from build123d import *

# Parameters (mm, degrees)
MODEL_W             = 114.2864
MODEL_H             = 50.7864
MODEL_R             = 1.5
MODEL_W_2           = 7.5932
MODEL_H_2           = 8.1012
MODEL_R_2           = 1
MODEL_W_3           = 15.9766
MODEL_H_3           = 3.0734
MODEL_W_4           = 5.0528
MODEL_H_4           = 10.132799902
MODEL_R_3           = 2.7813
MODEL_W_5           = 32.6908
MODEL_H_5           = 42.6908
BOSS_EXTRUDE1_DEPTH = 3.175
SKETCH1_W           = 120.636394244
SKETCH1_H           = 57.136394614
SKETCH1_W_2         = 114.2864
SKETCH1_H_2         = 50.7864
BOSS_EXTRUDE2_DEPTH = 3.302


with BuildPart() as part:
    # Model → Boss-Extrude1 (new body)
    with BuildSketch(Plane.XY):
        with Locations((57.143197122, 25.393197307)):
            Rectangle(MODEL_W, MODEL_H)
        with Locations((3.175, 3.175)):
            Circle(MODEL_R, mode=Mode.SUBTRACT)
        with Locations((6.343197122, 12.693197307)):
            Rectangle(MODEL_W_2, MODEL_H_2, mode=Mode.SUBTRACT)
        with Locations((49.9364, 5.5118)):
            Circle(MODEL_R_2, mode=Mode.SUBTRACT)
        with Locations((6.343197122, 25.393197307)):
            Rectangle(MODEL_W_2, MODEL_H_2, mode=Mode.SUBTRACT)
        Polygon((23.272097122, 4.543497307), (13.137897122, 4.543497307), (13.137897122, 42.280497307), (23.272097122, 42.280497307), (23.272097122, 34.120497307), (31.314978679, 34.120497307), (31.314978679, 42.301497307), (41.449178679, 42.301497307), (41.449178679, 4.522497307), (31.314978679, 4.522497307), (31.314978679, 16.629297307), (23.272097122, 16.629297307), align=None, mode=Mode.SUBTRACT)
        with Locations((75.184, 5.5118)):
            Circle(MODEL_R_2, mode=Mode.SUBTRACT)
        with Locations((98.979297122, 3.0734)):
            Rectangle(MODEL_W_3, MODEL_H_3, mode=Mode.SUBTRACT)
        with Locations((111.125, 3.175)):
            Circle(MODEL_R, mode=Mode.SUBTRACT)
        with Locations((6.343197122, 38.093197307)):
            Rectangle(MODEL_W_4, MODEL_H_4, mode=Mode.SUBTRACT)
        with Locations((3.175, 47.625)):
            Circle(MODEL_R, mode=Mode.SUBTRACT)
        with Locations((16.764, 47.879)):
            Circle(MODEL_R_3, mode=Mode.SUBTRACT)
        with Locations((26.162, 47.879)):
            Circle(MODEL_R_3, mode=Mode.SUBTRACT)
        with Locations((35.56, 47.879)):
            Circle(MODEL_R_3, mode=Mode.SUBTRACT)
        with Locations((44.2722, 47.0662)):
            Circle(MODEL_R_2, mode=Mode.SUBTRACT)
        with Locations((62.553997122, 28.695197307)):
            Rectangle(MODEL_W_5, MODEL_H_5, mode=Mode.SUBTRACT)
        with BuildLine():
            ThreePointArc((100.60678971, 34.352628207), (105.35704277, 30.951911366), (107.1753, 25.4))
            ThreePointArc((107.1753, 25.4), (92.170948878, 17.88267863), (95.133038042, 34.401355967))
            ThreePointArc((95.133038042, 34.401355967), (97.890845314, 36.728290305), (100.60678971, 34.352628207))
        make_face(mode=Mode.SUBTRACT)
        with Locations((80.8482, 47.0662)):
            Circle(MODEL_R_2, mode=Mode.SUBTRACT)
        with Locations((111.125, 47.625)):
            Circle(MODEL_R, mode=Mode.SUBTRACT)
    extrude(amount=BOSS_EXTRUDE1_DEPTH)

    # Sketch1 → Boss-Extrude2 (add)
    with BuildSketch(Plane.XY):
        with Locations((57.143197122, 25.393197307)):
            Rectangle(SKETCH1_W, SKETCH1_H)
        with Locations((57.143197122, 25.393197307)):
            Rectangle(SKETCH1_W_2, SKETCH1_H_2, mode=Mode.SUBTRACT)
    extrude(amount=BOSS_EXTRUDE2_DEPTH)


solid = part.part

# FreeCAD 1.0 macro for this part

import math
import FreeCAD as App
import Part
import Sketcher
from FreeCAD import Vector
Q = App.Units.Quantity

doc = App.newDocument("Part")
params = doc.addObject("Spreadsheet::Sheet", "Params")
for row, (alias, value) in enumerate([
    ("sketch1_diameter", "0.219 in"),
    ("sketch1_radius", "0.109 in"),
    ("sketch1_width", "0.629 in"),
    ("sketch1_height", "0.121 in"),
    ("pad1_length", "0.125 in"),
    ("pad2_length", "0.13 in"),
], start=1):
    params.set(f"A{row}", alias)
    params.set(f"B{row}", "=" + value)
    params.setAlias(f"B{row}", alias)

body = doc.addObject("PartDesign::Body", "Body")

sketch1 = body.newObject("Sketcher::SketchObject", "Sketch")
sketch1.AttachmentSupport = (doc.getObject("XY_Plane"), [""])
sketch1.MapMode = "FlatFace"
sketch1.addGeometry([
    Part.LineSegment(Vector(0, 50.8, 0), Vector(0, 0, 0)),
    Part.LineSegment(Vector(0, 0, 0), Vector(114.3, 0, 0)),
    Part.LineSegment(Vector(114.3, 0, 0), Vector(114.3, 50.8, 0)),
    Part.LineSegment(Vector(114.3, 50.8, 0), Vector(0, 50.8, 0)),
    Part.Circle(Vector(3.2, 3.2, 0), Vector(0, 0, 1), 1.5),
    Part.LineSegment(Vector(10.1, 8.6, 0), Vector(2.5, 8.6, 0)),
    Part.LineSegment(Vector(2.5, 8.6, 0), Vector(2.5, 16.7, 0)),
    Part.LineSegment(Vector(2.5, 16.7, 0), Vector(10.1, 16.7, 0)),
    Part.LineSegment(Vector(10.1, 16.7, 0), Vector(10.1, 8.6, 0)),
    Part.Circle(Vector(49.9, 5.5, 0), Vector(0, 0, 1), 1),
    Part.LineSegment(Vector(10.1, 21.3, 0), Vector(2.5, 21.3, 0)),
    Part.LineSegment(Vector(2.5, 21.3, 0), Vector(2.5, 29.4, 0)),
    Part.LineSegment(Vector(2.5, 29.4, 0), Vector(10.1, 29.4, 0)),
    Part.LineSegment(Vector(10.1, 29.4, 0), Vector(10.1, 21.3, 0)),
    Part.LineSegment(Vector(23.3, 16.6, 0), Vector(23.3, 4.5, 0)),
    Part.LineSegment(Vector(23.3, 4.5, 0), Vector(13.1, 4.5, 0)),
    Part.LineSegment(Vector(13.1, 4.5, 0), Vector(13.1, 42.3, 0)),
    Part.LineSegment(Vector(13.1, 42.3, 0), Vector(23.3, 42.3, 0)),
    Part.LineSegment(Vector(23.3, 42.3, 0), Vector(23.3, 34.1, 0)),
    Part.LineSegment(Vector(23.3, 34.1, 0), Vector(31.3, 34.1, 0)),
    Part.LineSegment(Vector(31.3, 34.1, 0), Vector(31.3, 42.3, 0)),
    Part.LineSegment(Vector(31.3, 42.3, 0), Vector(41.4, 42.3, 0)),
    Part.LineSegment(Vector(41.4, 42.3, 0), Vector(41.4, 4.5, 0)),
    Part.LineSegment(Vector(41.4, 4.5, 0), Vector(31.3, 4.5, 0)),
    Part.LineSegment(Vector(31.3, 4.5, 0), Vector(31.3, 16.6, 0)),
    Part.LineSegment(Vector(31.3, 16.6, 0), Vector(23.3, 16.6, 0)),
    Part.Circle(Vector(75.2, 5.5, 0), Vector(0, 0, 1), 1),
    Part.LineSegment(Vector(107, 1.5, 0), Vector(91, 1.5, 0)),
    Part.LineSegment(Vector(91, 1.5, 0), Vector(91, 4.6, 0)),
    Part.LineSegment(Vector(91, 4.6, 0), Vector(107, 4.6, 0)),
    Part.LineSegment(Vector(107, 4.6, 0), Vector(107, 1.5, 0)),
    Part.Circle(Vector(111.1, 3.2, 0), Vector(0, 0, 1), 1.5),
    Part.LineSegment(Vector(8.9, 33, 0), Vector(3.8, 33, 0)),
    Part.LineSegment(Vector(3.8, 33, 0), Vector(3.8, 43.2, 0)),
    Part.LineSegment(Vector(3.8, 43.2, 0), Vector(8.9, 43.2, 0)),
    Part.LineSegment(Vector(8.9, 43.2, 0), Vector(8.9, 33, 0)),
    Part.Circle(Vector(3.2, 47.6, 0), Vector(0, 0, 1), 1.5),
    Part.Circle(Vector(16.8, 47.9, 0), Vector(0, 0, 1), 2.8),
    Part.Circle(Vector(26.2, 47.9, 0), Vector(0, 0, 1), 2.8),
    Part.Circle(Vector(35.6, 47.9, 0), Vector(0, 0, 1), 2.8),
    Part.Circle(Vector(44.3, 47.1, 0), Vector(0, 0, 1), 1),
    Part.LineSegment(Vector(78.9, 7.3, 0), Vector(46.2, 7.3, 0)),
    Part.LineSegment(Vector(46.2, 7.3, 0), Vector(46.2, 50, 0)),
    Part.LineSegment(Vector(46.2, 50, 0), Vector(78.9, 50, 0)),
    Part.LineSegment(Vector(78.9, 50, 0), Vector(78.9, 7.3, 0)),
    Part.ArcOfCircle(Part.Circle(Vector(97.9, 34, 0), Vector(0, 0, 1), 2.8), math.radians(8), math.radians(171)),
    Part.ArcOfCircle(Part.Circle(Vector(97.8, 25.4, 0), Vector(0, 0, 1), 9.4), math.radians(0), math.radians(73)),
    Part.ArcOfCircle(Part.Circle(Vector(97.8, 25.4, 0), Vector(0, 0, 1), 9.4), math.radians(106), math.radians(360)),
    Part.Circle(Vector(80.8, 47.1, 0), Vector(0, 0, 1), 1),
    Part.Circle(Vector(111.1, 47.6, 0), Vector(0, 0, 1), 1.5),
], False)
sketch1.addConstraint([
    Sketcher.Constraint("Coincident", 0, 2, 1, 1),
    Sketcher.Constraint("Coincident", 1, 2, 2, 1),
    Sketcher.Constraint("Coincident", 2, 2, 3, 1),
    Sketcher.Constraint("Coincident", 3, 2, 0, 1),
    Sketcher.Constraint("Coincident", 5, 2, 6, 1),
    Sketcher.Constraint("Coincident", 6, 2, 7, 1),
    Sketcher.Constraint("Coincident", 7, 2, 8, 1),
    Sketcher.Constraint("Coincident", 8, 2, 5, 1),
    Sketcher.Constraint("Coincident", 10, 2, 11, 1),
    Sketcher.Constraint("Coincident", 11, 2, 12, 1),
    Sketcher.Constraint("Coincident", 12, 2, 13, 1),
    Sketcher.Constraint("Coincident", 13, 2, 10, 1),
    Sketcher.Constraint("Coincident", 14, 2, 15, 1),
    Sketcher.Constraint("Coincident", 15, 2, 16, 1),
    Sketcher.Constraint("Coincident", 16, 2, 17, 1),
    Sketcher.Constraint("Coincident", 17, 2, 18, 1),
    Sketcher.Constraint("Coincident", 18, 2, 19, 1),
    Sketcher.Constraint("Coincident", 19, 2, 20, 1),
    Sketcher.Constraint("Coincident", 20, 2, 21, 1),
    Sketcher.Constraint("Coincident", 21, 2, 22, 1),
    Sketcher.Constraint("Coincident", 22, 2, 23, 1),
    Sketcher.Constraint("Coincident", 23, 2, 24, 1),
    Sketcher.Constraint("Coincident", 24, 2, 25, 1),
    Sketcher.Constraint("Coincident", 25, 2, 14, 1),
    Sketcher.Constraint("Coincident", 27, 2, 28, 1),
    Sketcher.Constraint("Coincident", 28, 2, 29, 1),
    Sketcher.Constraint("Coincident", 29, 2, 30, 1),
    Sketcher.Constraint("Coincident", 30, 2, 27, 1),
    Sketcher.Constraint("Coincident", 32, 2, 33, 1),
    Sketcher.Constraint("Coincident", 33, 2, 34, 1),
    Sketcher.Constraint("Coincident", 34, 2, 35, 1),
    Sketcher.Constraint("Coincident", 35, 2, 32, 1),
    Sketcher.Constraint("Coincident", 41, 2, 42, 1),
    Sketcher.Constraint("Coincident", 42, 2, 43, 1),
    Sketcher.Constraint("Coincident", 43, 2, 44, 1),
    Sketcher.Constraint("Coincident", 44, 2, 41, 1),
    Sketcher.Constraint("Coincident", 45, 1, 46, 2),
    Sketcher.Constraint("Tangent", 46, 1, 47, 2),
    Sketcher.Constraint("Coincident", 47, 1, 45, 2),
    Sketcher.Constraint("Vertical", 0),
    Sketcher.Constraint("Horizontal", 1),
    Sketcher.Constraint("Vertical", 2),
    Sketcher.Constraint("Horizontal", 3),
    Sketcher.Constraint("Horizontal", 5),
    Sketcher.Constraint("Vertical", 6),
    Sketcher.Constraint("Horizontal", 7),
    Sketcher.Constraint("Vertical", 8),
    Sketcher.Constraint("Horizontal", 10),
    Sketcher.Constraint("Vertical", 11),
    Sketcher.Constraint("Horizontal", 12),
    Sketcher.Constraint("Vertical", 13),
    Sketcher.Constraint("Vertical", 14),
    Sketcher.Constraint("Horizontal", 15),
    Sketcher.Constraint("Vertical", 16),
    Sketcher.Constraint("Horizontal", 17),
    Sketcher.Constraint("Vertical", 18),
    Sketcher.Constraint("Horizontal", 19),
    Sketcher.Constraint("Vertical", 20),
    Sketcher.Constraint("Horizontal", 21),
    Sketcher.Constraint("Vertical", 22),
    Sketcher.Constraint("Horizontal", 23),
    Sketcher.Constraint("Vertical", 24),
    Sketcher.Constraint("Horizontal", 25),
    Sketcher.Constraint("Horizontal", 27),
    Sketcher.Constraint("Vertical", 28),
    Sketcher.Constraint("Horizontal", 29),
    Sketcher.Constraint("Vertical", 30),
    Sketcher.Constraint("Horizontal", 32),
    Sketcher.Constraint("Vertical", 33),
    Sketcher.Constraint("Horizontal", 34),
    Sketcher.Constraint("Vertical", 35),
    Sketcher.Constraint("Horizontal", 41),
    Sketcher.Constraint("Vertical", 42),
    Sketcher.Constraint("Horizontal", 43),
    Sketcher.Constraint("Vertical", 44),
    Sketcher.Constraint("Coincident", 0, 2, -1, 1),
    Sketcher.Constraint("Equal", 9, 26),
    Sketcher.Constraint("Equal", 4, 31),
    Sketcher.Constraint("Equal", 31, 36),
    Sketcher.Constraint("Equal", 37, 38),
    Sketcher.Constraint("Equal", 38, 39),
    Sketcher.Constraint("Equal", 26, 40),
    Sketcher.Constraint("Equal", 46, 47),
    Sketcher.Constraint("Equal", 40, 48),
    Sketcher.Constraint("Equal", 36, 49),
    Sketcher.Constraint("Horizontal", 9, 3, 26, 3),
    Sketcher.Constraint("Horizontal", 4, 3, 31, 3),
    Sketcher.Constraint("Horizontal", 37, 3, 38, 3),
    Sketcher.Constraint("Horizontal", 38, 3, 39, 3),
    Sketcher.Constraint("Horizontal", 40, 3, 48, 3),
    Sketcher.Constraint("Horizontal", 36, 3, 49, 3),
    Sketcher.Constraint("Horizontal", 47, 3, 46, 1),
    Sketcher.Constraint("Vertical", 4, 3, 36, 3),
    Sketcher.Constraint("Vertical", 31, 3, 49, 3),
    Sketcher.Constraint("Vertical", 6, 2, 10, 2),
    Sketcher.Constraint("Vertical", 8, 2, 12, 2),
    Sketcher.Constraint("Vertical", 14, 2, 17, 2),
    Sketcher.Constraint("Vertical", 20, 2, 23, 2),
    Sketcher.Constraint("Equal", 17, 21),
    Sketcher.Constraint("Equal", 8, 11),
    Sketcher.Constraint("Diameter", 37, Q("0.219 in")),
    Sketcher.Constraint("DistanceY", -1, 1, 46, 3, Q("1 in")),
    Sketcher.Constraint("Radius", 45, Q("0.109 in")),
    Sketcher.Constraint("DistanceX", -1, 1, 39, 3, Q("1.4 in")),
    Sketcher.Constraint("Radius", 46, Q("0.3695 in")),
    Sketcher.Constraint("DistanceX", 37, 3, 26, 3, Q("2.3 in")),
    Sketcher.Constraint("DistanceY", 5, 2, 10, 2, Q("0.5 in")),
    Sketcher.Constraint("Diameter", 4, Q("3 mm")),
    Sketcher.Constraint("Diameter", 9, Q("2 mm")),
    Sketcher.Constraint("DistanceX", 27, 2, 27, 1, Q("0.629 in")),
    Sketcher.Constraint("DistanceY", 28, 1, 28, 2, Q("0.121 in")),
    Sketcher.Constraint("DistanceX", -1, 1, 26, 3, Q("2.96 in")),
    Sketcher.Constraint("DistanceX", -1, 1, 38, 3, Q("1.03 in")),
    Sketcher.Constraint("DistanceX", -1, 1, 46, 3, Q("3.85 in")),
    Sketcher.Constraint("DistanceX", 4, 3, 31, 3, Q("4.25 in")),
    Sketcher.Constraint("DistanceY", 4, 3, 36, 3, Q("1.75 in")),
    Sketcher.Constraint("DistanceY", 36, 3, 37, 3, Q("0.01 in")),
    Sketcher.Constraint("DistanceY", 26, 3, 45, 3, Q("1.12 in")),
    Sketcher.Constraint("DistanceX", 40, 3, 45, 3, Q("2.11 in")),
    Sketcher.Constraint("DistanceX", 48, 3, 45, 3, Q("0.67 in")),
    Sketcher.Constraint("DistanceX", -1, 1, 4, 3, Q("0.125 in")),
    Sketcher.Constraint("DistanceY", -1, 1, 4, 3, Q("0.125 in")),
    Sketcher.Constraint("DistanceX", -1, 1, 9, 3, Q("1.966 in")),
    Sketcher.Constraint("DistanceY", -1, 1, 9, 3, Q("0.217 in")),
    Sketcher.Constraint("DistanceX", -1, 1, 40, 3, Q("1.743 in")),
    Sketcher.Constraint("DistanceY", -1, 1, 40, 3, Q("1.853 in")),
    Sketcher.Constraint("DistanceX", 1, 1, 1, 2, Q("114.2864 mm")),
    Sketcher.Constraint("DistanceX", 5, 2, 5, 1, Q("7.5932 mm")),
    Sketcher.Constraint("DistanceX", 15, 2, 15, 1, Q("10.1342 mm")),
    Sketcher.Constraint("DistanceX", 32, 2, 32, 1, Q("5.0528 mm")),
    Sketcher.Constraint("DistanceX", 41, 2, 41, 1, Q("32.6908 mm")),
    Sketcher.Constraint("DistanceY", 0, 2, 0, 1, Q("50.7864 mm")),
    Sketcher.Constraint("DistanceY", 6, 1, 6, 2, Q("8.1012 mm")),
    Sketcher.Constraint("DistanceY", 14, 2, 14, 1, Q("12.0858 mm")),
    Sketcher.Constraint("DistanceY", 16, 1, 16, 2, Q("37.737 mm")),
    Sketcher.Constraint("DistanceY", 18, 2, 18, 1, Q("8.16 mm")),
    Sketcher.Constraint("DistanceY", 20, 1, 20, 2, Q("8.181 mm")),
    Sketcher.Constraint("DistanceY", 22, 2, 22, 1, Q("37.779 mm")),
    Sketcher.Constraint("DistanceY", 33, 1, 33, 2, Q("10.1328 mm")),
    Sketcher.Constraint("DistanceY", 42, 1, 42, 2, Q("42.6908 mm")),
    Sketcher.Constraint("DistanceY", -1, 1, 27, 2, Q("0.0605 in")),
    Sketcher.Constraint("DistanceX", 19, 1, 19, 2, Q("8.042882 mm")),
    Sketcher.Constraint("DistanceX", 0, 2, 5, 2, Q("2.5466 mm")),
    Sketcher.Constraint("DistanceY", 0, 2, 5, 2, Q("8.6426 mm")),
    Sketcher.Constraint("DistanceX", 8, 2, 14, 2, Q("13.1323 mm")),
    Sketcher.Constraint("DistanceY", 14, 2, 8, 2, Q("4.0991 mm")),
    Sketcher.Constraint("DistanceX", 27, 2, 1, 2, Q("23.2954 mm")),
    Sketcher.Constraint("DistanceX", 11, 2, 32, 2, Q("1.2702 mm")),
    Sketcher.Constraint("DistanceY", 11, 2, 32, 2, Q("3.583 mm")),
    Sketcher.Constraint("DistanceY", 22, 2, 41, 2, Q("2.8273 mm")),
    Sketcher.Constraint("DistanceX", 14, 2, 41, 2, Q("22.9365 mm")),
])
sketch1.setExpression("Constraints[100]", "Params.sketch1_diameter")
sketch1.setExpression("Constraints[102]", "Params.sketch1_radius")
sketch1.setExpression("Constraints[109]", "Params.sketch1_width")
sketch1.setExpression("Constraints[110]", "Params.sketch1_height")
pad1 = body.newObject("PartDesign::Pad", "Pad")
pad1.Profile = sketch1
pad1.setExpression("Length", "Params.pad1_length")

sketch2 = body.newObject("Sketcher::SketchObject", "Sketch001")
sketch2.AttachmentSupport = (doc.getObject("XY_Plane"), [""])
sketch2.MapMode = "FlatFace"
sketch2.addGeometry([
    Part.LineSegment(Vector(-3, 54, 0), Vector(-3, -3, 0)),
    Part.LineSegment(Vector(-3, -3, 0), Vector(117, -3, 0)),
    Part.LineSegment(Vector(117, -3, 0), Vector(117, 54, 0)),
    Part.LineSegment(Vector(117, 54, 0), Vector(-3, 54, 0)),
    Part.LineSegment(Vector(114, 0, 0), Vector(0, 0, 0)),
    Part.LineSegment(Vector(0, 0, 0), Vector(0, 51, 0)),
    Part.LineSegment(Vector(0, 51, 0), Vector(114, 51, 0)),
    Part.LineSegment(Vector(114, 51, 0), Vector(114, 0, 0)),
], False)
sketch2.addConstraint([
    Sketcher.Constraint("Coincident", 0, 2, 1, 1),
    Sketcher.Constraint("Coincident", 1, 2, 2, 1),
    Sketcher.Constraint("Coincident", 2, 2, 3, 1),
    Sketcher.Constraint("Coincident", 3, 2, 0, 1),
    Sketcher.Constraint("Coincident", 4, 2, 5, 1),
    Sketcher.Constraint("Coincident", 5, 2, 6, 1),
    Sketcher.Constraint("Coincident", 6, 2, 7, 1),
    Sketcher.Constraint("Coincident", 7, 2, 4, 1),
    Sketcher.Constraint("Vertical", 0),
    Sketcher.Constraint("Horizontal", 1),
    Sketcher.Constraint("Vertical", 2),
    Sketcher.Constraint("Horizontal", 3),
    Sketcher.Constraint("Horizontal", 4),
    Sketcher.Constraint("Vertical", 5),
    Sketcher.Constraint("Horizontal", 6),
    Sketcher.Constraint("Vertical", 7),
    Sketcher.Constraint("Coincident", 4, 2, -1, 1),
    Sketcher.Constraint("DistanceX", 0, 2, -1, 1, Q("0.125 in")),
    Sketcher.Constraint("DistanceY", 0, 2, -1, 1, Q("0.125 in")),
    Sketcher.Constraint("DistanceY", 5, 2, 3, 2, Q("0.1249999 in")),
    Sketcher.Constraint("DistanceX", 6, 2, 2, 2, Q("0.1249999 in")),
    Sketcher.Constraint("DistanceX", 4, 2, 4, 1, Q("114.2864 mm")),
    Sketcher.Constraint("DistanceY", 5, 1, 5, 2, Q("50.7864 mm")),
])
pad2 = body.newObject("PartDesign::Pad", "Pad001")
pad2.Profile = sketch2
pad2.setExpression("Length", "Params.pad2_length")

doc.recompute()
